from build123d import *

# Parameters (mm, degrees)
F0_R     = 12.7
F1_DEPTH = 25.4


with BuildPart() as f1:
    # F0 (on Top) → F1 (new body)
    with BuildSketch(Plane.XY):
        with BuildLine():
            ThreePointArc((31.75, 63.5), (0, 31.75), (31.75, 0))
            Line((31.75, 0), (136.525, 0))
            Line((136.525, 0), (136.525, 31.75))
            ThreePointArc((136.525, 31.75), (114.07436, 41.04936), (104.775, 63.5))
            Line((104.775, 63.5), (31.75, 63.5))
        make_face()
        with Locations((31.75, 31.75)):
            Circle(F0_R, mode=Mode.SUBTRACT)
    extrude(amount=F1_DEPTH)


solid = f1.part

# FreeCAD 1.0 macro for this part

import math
import FreeCAD as App
import Part
import Sketcher

V = App.Vector
Q = App.Units.Quantity

doc = App.newDocument("Part")
body = doc.addObject("PartDesign::Body", "Body")

# Sketch on XY plane
sketch1 = body.newObject("Sketcher::SketchObject", "Sketch")
sketch1.AttachmentSupport = (doc.getObject("XY_Plane"), [""])
sketch1.MapMode = "FlatFace"
sketch1.addGeometry([
    Part.ArcOfCircle(Part.Circle(V(32, 32, 0), V(0, 0, 1), 32), math.radians(90), math.radians(270)),  # 0
    Part.LineSegment(V(32, 0, 0), V(137, 0, 0)),  # 1
    Part.LineSegment(V(137, 0, 0), V(137, 32, 0)),  # 2
    Part.ArcOfCircle(Part.Circle(V(137, 64, 0), V(0, 0, 1), 32), math.radians(-180), math.radians(-90)),  # 3
    Part.LineSegment(V(105, 64, 0), V(32, 64, 0)),  # 4
    Part.Circle(V(32, 32, 0), V(0, 0, 1), 13),  # 5
], False)
sketch1.addConstraint([
    Sketcher.Constraint("Tangent", 0, 2, 1, 1),
    Sketcher.Constraint("Coincident", 1, 2, 2, 1),
    Sketcher.Constraint("Coincident", 2, 2, 3, 2),
    Sketcher.Constraint("Coincident", 3, 1, 4, 1),
    Sketcher.Constraint("Tangent", 4, 2, 0, 1),
    Sketcher.Constraint("Horizontal", 1),
    Sketcher.Constraint("Vertical", 2),
    Sketcher.Constraint("Horizontal", 4),
    Sketcher.Constraint("Coincident", 5, 3, 0, 3),
    Sketcher.Constraint("Equal", 0, 3),
    Sketcher.Constraint("PointOnObject", 0, 2, -1),
    Sketcher.Constraint("Horizontal", 5, 3, 2, 2),
    Sketcher.Constraint("Vertical", 3, 3, 1, 2),
    Sketcher.Constraint("Diameter", 5, Q("1 in")),
    Sketcher.Constraint("Radius", 0, Q("1.25 in")),
    Sketcher.Constraint("DistanceX", 1, 1, 1, 2, Q("4.125 in")),
    Sketcher.Constraint("DistanceX", -1, 1, 0, 3, Q("1.25 in")),
])
pad1 = body.newObject("PartDesign::Pad", "Pad")
pad1.Profile = sketch1
pad1.Length = Q("1 in")

doc.recompute()
